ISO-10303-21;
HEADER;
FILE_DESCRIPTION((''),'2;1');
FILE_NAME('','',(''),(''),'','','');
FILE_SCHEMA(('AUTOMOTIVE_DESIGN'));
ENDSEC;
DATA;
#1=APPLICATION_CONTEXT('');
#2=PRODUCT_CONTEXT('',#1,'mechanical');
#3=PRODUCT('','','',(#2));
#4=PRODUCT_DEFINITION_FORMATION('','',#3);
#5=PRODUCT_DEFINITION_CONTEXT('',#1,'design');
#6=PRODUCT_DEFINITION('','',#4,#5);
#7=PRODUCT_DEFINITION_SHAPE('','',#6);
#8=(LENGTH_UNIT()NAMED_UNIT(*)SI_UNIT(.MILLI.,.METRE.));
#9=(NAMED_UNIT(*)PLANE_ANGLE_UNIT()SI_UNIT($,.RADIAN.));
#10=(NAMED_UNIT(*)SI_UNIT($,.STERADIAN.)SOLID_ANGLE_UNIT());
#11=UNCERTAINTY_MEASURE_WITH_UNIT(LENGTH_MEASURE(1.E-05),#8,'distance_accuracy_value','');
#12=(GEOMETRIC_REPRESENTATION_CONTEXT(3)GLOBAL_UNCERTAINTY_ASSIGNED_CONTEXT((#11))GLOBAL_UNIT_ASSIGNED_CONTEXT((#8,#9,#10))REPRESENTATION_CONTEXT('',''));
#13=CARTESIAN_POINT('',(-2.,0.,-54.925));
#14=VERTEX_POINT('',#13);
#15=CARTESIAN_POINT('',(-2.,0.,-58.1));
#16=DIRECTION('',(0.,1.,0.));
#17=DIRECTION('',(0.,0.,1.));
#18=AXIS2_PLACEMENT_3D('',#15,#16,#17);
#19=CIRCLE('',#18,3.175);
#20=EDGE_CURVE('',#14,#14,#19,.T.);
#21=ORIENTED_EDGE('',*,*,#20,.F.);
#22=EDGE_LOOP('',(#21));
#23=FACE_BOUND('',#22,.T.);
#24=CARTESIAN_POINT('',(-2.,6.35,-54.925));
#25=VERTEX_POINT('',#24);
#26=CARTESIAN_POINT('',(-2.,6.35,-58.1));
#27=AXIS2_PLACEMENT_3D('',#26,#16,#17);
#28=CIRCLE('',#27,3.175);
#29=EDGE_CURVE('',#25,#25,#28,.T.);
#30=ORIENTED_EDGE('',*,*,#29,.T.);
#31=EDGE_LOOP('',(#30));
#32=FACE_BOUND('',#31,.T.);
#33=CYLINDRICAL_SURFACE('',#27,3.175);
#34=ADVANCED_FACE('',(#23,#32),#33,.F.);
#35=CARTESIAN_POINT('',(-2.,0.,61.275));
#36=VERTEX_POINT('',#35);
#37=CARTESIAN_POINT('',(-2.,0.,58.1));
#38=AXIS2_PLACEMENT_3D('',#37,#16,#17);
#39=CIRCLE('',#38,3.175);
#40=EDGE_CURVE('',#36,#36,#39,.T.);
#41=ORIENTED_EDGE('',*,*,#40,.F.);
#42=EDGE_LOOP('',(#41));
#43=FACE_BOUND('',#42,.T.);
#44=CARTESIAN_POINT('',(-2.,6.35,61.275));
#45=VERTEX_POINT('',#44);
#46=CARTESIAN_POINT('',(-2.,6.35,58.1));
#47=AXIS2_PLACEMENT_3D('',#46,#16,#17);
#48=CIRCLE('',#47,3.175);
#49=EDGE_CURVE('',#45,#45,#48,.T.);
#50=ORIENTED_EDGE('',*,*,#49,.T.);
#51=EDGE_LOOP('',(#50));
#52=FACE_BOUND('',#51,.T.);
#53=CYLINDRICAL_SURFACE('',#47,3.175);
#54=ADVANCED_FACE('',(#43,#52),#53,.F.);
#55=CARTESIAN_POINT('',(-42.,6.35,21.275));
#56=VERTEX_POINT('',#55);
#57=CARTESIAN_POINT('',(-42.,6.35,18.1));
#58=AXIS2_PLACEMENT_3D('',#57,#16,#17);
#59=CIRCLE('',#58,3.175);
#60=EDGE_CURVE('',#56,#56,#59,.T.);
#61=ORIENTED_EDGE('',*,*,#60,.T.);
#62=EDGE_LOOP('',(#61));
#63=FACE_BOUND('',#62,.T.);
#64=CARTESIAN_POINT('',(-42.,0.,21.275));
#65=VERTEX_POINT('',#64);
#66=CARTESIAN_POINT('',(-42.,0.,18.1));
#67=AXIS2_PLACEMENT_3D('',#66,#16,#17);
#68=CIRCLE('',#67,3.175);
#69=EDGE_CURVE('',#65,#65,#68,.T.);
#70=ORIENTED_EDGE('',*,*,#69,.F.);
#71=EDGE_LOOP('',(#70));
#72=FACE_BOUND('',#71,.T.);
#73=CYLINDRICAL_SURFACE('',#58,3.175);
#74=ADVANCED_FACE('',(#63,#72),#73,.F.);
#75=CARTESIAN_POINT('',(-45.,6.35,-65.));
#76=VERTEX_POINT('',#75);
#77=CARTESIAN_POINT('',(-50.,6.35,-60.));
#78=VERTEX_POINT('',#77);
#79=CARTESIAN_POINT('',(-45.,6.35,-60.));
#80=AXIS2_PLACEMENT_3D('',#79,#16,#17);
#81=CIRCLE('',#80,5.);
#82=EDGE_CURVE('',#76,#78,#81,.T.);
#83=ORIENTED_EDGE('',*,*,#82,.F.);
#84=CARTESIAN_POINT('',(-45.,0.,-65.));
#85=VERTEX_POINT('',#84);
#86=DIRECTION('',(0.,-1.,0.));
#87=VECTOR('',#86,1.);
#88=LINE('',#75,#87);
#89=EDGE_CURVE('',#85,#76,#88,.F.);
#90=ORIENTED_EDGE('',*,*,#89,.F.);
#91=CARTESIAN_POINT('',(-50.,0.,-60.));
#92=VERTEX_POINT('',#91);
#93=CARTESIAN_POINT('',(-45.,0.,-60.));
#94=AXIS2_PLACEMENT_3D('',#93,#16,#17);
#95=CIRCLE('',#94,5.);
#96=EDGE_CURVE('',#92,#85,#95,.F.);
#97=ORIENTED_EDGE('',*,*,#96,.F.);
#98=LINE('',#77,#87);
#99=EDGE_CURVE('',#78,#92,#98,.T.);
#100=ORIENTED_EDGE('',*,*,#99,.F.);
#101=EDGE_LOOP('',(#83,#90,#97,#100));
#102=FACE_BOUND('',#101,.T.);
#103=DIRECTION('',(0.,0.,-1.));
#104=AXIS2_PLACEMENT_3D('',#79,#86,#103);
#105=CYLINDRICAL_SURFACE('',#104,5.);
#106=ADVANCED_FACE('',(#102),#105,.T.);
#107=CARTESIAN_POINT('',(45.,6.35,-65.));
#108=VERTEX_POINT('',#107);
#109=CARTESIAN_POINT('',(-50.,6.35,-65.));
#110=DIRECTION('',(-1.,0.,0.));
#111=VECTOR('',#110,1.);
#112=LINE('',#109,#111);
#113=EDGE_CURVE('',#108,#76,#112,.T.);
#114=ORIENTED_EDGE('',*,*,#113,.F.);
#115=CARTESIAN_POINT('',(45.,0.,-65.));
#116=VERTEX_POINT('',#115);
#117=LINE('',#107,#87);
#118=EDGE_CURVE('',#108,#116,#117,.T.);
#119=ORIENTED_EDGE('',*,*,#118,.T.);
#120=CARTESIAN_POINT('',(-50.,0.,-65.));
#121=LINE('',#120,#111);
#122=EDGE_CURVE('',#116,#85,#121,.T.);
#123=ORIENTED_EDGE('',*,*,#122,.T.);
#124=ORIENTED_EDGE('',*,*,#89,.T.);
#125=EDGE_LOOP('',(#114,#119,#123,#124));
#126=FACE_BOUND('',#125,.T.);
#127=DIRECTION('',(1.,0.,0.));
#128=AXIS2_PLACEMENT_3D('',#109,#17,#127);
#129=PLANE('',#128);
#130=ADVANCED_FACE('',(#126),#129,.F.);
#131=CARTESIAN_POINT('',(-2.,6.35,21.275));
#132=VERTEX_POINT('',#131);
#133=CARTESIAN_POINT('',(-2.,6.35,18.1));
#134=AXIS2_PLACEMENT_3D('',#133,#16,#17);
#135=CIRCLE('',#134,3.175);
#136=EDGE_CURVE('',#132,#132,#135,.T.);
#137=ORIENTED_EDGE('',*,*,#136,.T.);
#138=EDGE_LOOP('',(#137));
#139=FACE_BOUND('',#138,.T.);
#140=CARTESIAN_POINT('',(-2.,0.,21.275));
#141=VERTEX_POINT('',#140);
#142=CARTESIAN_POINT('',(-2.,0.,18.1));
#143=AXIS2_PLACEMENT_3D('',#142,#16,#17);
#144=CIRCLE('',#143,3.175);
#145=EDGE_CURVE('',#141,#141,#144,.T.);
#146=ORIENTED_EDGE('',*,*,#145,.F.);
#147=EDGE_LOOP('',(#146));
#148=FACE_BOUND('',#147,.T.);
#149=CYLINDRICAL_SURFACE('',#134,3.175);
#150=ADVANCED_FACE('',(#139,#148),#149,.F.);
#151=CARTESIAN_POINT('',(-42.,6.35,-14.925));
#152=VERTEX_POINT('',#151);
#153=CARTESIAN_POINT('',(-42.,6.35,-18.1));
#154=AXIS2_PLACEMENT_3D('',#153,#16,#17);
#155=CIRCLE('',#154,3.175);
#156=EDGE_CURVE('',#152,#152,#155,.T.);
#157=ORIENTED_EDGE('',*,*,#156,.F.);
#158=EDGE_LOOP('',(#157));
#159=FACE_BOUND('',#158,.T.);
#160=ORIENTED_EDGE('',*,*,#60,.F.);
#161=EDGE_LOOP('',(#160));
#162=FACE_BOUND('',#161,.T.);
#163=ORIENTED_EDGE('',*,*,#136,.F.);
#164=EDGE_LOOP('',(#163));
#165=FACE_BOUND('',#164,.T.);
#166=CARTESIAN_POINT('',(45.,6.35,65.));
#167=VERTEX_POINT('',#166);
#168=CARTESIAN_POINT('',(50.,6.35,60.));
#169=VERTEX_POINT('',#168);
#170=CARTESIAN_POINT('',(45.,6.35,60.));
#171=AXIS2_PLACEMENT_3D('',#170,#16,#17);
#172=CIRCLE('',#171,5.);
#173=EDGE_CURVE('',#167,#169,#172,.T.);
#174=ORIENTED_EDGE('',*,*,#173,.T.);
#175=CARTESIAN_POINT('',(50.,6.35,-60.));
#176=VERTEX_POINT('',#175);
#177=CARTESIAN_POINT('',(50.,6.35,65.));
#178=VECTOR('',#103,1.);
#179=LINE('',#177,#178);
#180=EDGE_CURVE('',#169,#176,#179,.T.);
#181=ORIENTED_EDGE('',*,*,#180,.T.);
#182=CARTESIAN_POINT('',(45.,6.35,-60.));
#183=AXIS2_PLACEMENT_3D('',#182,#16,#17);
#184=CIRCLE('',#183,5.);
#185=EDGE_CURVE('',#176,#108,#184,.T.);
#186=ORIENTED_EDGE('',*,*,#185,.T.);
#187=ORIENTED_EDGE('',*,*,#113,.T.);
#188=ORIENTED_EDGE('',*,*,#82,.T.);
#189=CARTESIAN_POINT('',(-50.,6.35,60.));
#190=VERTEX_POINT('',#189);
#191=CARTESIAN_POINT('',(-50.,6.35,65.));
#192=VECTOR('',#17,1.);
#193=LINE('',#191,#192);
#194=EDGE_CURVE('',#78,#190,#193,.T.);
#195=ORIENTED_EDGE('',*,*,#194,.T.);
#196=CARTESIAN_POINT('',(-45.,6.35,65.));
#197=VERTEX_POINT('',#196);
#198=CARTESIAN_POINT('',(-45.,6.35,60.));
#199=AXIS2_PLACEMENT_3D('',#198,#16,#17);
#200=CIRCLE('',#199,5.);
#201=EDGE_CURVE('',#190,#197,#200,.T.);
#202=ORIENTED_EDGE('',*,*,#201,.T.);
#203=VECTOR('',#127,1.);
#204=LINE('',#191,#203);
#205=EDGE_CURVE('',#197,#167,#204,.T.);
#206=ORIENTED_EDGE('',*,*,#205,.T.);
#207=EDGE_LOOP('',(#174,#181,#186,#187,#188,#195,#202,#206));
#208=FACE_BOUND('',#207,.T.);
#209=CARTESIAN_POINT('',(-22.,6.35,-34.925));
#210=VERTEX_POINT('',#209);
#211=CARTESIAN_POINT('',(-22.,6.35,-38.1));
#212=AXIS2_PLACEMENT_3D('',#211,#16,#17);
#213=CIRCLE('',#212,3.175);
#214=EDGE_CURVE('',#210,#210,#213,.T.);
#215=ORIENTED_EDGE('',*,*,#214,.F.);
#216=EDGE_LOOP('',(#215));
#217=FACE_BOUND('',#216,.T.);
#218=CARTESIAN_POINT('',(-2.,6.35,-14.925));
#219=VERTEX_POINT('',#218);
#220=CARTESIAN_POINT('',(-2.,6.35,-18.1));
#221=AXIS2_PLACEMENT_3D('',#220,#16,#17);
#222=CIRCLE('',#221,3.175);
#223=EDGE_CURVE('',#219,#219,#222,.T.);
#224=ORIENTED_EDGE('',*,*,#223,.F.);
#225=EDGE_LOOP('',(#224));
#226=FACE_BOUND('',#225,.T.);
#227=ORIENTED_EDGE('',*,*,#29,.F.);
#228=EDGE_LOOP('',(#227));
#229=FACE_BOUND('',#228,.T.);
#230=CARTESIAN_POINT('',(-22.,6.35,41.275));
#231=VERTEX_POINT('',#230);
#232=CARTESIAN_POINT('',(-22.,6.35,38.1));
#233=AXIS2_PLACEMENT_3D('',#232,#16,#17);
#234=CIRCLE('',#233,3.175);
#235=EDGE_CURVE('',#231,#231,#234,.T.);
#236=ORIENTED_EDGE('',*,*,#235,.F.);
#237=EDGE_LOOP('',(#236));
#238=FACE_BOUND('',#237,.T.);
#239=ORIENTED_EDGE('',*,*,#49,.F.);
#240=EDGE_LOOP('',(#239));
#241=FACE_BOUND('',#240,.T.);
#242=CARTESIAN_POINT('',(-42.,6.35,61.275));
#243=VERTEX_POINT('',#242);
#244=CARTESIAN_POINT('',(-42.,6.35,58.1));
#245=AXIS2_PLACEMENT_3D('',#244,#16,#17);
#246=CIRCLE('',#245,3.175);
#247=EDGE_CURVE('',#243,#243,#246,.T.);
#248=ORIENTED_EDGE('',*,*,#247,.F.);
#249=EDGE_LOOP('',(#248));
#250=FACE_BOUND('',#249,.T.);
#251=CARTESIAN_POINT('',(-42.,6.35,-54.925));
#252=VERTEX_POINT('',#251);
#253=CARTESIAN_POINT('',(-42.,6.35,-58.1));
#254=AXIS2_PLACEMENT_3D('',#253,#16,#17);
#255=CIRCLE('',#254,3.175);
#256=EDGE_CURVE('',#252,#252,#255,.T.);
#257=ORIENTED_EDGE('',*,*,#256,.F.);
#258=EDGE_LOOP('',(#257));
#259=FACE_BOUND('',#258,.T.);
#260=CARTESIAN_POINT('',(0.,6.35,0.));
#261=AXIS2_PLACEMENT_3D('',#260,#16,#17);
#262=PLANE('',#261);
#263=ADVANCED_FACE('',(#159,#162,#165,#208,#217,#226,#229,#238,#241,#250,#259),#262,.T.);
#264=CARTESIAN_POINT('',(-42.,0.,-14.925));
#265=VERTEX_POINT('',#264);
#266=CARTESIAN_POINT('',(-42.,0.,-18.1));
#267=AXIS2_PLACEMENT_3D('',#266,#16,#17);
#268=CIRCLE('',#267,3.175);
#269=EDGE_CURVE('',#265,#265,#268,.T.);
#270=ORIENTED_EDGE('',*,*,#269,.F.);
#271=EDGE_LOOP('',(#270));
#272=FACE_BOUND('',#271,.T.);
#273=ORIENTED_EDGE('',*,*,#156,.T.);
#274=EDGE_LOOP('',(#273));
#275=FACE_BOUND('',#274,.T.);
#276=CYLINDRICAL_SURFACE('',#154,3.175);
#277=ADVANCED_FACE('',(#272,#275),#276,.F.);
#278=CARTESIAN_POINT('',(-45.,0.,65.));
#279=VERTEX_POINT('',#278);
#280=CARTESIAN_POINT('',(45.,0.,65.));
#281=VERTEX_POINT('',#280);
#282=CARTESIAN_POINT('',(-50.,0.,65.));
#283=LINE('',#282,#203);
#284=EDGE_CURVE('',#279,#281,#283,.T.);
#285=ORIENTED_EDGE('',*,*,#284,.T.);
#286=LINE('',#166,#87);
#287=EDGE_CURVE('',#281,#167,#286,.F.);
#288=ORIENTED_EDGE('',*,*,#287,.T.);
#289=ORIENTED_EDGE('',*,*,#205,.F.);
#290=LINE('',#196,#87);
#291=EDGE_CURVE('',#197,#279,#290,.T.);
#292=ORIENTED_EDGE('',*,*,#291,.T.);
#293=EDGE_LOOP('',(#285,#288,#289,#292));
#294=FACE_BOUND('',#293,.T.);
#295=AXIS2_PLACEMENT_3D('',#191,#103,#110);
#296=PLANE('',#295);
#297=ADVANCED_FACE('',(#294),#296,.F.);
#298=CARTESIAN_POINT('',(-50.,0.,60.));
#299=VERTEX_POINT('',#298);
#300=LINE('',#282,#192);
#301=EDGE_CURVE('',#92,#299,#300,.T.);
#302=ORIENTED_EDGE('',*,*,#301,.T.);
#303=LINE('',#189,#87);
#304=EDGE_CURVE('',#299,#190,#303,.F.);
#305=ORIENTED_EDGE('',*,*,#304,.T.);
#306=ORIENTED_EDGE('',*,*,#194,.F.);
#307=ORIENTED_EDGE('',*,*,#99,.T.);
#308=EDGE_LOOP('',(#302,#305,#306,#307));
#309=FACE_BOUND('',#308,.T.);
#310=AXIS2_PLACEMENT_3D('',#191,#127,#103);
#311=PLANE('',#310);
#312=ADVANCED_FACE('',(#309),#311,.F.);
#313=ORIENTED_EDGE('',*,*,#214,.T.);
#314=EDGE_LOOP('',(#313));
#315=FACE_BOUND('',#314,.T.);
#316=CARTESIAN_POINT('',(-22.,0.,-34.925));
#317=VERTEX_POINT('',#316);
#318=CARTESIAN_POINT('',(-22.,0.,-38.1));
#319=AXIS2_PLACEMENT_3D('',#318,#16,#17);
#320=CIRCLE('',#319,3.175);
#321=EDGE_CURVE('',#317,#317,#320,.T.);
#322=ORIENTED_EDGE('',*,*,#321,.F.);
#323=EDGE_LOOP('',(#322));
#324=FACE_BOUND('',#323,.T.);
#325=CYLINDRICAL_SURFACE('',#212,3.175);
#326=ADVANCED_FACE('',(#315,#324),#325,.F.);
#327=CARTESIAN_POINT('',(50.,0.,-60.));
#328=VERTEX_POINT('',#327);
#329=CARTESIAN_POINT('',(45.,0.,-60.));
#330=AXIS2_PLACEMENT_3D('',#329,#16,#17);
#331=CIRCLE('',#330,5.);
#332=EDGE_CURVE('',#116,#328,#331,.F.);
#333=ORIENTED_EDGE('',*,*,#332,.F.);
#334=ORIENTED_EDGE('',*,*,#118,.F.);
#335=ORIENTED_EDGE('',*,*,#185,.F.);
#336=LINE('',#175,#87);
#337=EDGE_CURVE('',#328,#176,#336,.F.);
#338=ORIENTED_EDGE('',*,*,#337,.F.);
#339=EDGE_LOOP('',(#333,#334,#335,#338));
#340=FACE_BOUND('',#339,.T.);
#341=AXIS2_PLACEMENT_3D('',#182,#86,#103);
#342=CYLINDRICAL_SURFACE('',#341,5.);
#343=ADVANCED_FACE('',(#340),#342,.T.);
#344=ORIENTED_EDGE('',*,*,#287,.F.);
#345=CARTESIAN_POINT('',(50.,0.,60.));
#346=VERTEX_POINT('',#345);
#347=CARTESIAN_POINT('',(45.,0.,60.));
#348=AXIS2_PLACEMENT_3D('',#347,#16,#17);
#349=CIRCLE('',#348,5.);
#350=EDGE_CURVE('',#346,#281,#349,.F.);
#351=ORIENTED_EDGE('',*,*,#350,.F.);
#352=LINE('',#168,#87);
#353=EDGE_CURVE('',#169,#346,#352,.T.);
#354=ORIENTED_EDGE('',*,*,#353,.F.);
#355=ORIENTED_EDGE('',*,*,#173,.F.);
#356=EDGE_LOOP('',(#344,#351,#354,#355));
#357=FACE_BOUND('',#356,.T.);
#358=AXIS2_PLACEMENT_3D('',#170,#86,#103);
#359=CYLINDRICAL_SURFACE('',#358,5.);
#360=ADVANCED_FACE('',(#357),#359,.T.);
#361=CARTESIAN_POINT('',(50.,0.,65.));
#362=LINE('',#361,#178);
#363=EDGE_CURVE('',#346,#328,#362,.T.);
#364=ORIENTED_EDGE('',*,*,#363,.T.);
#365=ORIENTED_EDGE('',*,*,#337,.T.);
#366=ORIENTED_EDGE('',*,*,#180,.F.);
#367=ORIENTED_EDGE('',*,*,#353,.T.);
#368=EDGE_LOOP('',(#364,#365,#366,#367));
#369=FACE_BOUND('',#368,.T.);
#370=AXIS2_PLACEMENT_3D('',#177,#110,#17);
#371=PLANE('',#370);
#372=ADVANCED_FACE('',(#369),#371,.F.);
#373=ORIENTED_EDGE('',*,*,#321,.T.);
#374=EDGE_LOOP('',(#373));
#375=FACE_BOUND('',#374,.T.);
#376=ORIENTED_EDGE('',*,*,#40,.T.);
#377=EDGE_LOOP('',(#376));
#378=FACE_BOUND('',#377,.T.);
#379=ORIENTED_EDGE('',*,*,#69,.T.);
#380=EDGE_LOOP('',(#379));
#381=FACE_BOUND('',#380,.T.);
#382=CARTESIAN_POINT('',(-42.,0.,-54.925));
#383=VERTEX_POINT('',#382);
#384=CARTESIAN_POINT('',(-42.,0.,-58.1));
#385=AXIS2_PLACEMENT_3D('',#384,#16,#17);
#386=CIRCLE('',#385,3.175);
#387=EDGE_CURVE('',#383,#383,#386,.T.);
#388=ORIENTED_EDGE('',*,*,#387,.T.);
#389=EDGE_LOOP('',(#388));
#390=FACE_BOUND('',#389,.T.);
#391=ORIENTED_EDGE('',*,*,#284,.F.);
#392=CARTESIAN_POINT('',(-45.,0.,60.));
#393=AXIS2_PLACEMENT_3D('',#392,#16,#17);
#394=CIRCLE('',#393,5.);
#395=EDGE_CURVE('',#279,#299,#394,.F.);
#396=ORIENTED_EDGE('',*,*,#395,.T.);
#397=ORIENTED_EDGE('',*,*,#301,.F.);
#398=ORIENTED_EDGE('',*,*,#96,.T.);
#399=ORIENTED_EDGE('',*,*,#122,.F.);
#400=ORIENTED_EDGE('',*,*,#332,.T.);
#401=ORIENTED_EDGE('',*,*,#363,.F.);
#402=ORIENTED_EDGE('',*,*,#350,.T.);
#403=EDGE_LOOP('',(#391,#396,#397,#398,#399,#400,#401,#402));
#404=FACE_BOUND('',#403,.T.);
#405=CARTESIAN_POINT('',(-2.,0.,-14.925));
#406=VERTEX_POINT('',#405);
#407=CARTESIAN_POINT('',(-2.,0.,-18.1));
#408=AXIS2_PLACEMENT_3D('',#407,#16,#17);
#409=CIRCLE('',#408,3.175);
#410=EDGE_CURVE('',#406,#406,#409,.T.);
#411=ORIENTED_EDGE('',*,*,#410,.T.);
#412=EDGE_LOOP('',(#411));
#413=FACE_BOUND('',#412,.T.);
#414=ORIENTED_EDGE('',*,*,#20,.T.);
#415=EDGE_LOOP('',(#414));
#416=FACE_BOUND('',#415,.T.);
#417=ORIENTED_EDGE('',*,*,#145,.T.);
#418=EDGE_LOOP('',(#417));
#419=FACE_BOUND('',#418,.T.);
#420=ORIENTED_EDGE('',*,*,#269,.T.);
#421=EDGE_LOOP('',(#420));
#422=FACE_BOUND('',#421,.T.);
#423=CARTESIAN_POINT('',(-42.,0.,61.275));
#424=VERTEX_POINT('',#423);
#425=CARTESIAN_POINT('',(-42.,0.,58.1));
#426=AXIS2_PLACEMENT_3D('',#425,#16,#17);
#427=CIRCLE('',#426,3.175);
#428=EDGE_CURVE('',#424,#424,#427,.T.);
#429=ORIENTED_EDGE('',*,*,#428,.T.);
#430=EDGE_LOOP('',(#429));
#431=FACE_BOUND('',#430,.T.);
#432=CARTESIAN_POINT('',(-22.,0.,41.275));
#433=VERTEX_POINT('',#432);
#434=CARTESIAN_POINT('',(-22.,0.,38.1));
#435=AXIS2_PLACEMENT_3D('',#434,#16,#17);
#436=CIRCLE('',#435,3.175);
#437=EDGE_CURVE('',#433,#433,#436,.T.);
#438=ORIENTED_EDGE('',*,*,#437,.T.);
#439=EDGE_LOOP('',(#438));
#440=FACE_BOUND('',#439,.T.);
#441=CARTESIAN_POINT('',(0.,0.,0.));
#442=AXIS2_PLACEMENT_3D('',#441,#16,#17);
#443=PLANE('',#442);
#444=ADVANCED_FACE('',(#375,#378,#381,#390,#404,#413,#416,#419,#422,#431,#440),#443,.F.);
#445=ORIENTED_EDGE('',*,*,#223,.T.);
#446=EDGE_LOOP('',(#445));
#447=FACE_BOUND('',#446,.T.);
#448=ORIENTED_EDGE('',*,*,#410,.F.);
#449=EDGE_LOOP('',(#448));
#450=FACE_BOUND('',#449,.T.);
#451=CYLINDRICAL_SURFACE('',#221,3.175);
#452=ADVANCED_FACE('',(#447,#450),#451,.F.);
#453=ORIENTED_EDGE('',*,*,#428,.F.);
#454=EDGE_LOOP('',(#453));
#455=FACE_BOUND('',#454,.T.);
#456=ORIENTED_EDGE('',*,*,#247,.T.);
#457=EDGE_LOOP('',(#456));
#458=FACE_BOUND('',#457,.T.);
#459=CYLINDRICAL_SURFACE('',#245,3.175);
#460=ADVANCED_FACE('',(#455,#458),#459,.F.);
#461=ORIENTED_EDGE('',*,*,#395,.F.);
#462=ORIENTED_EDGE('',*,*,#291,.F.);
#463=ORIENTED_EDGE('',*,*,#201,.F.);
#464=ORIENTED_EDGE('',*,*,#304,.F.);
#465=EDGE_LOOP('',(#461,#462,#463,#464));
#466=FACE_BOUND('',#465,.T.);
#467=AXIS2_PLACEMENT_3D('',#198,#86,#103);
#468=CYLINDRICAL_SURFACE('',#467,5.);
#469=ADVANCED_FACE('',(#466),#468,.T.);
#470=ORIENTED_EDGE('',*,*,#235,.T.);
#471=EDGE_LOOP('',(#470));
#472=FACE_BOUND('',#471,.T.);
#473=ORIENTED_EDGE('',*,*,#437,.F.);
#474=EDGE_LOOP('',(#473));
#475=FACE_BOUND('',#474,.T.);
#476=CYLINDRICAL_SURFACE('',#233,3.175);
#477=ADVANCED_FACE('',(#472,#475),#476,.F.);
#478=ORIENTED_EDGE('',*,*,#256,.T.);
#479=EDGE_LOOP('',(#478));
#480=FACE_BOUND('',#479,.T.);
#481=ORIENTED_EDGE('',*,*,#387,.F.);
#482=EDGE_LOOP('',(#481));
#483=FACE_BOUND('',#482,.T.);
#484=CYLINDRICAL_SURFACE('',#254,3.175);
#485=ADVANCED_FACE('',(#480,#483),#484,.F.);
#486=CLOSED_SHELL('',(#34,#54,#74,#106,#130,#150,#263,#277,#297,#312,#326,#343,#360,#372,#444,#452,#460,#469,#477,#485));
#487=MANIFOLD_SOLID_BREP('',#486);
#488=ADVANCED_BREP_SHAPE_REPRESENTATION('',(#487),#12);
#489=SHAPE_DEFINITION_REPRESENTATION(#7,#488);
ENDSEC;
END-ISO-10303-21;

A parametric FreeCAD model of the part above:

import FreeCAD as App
import Part
import Sketcher


def edges_at(feature, points):
    """Names of the edges that pass closest to the given points."""
    edges = feature.Shape.Edges
    near = lambda p: min(range(len(edges)), key=lambda i: edges[i].distToShape(Part.Vertex(*p))[0])
    return sorted({f"Edge{near(p) + 1}" for p in points})

doc = App.newDocument("Part")
body = doc.addObject("PartDesign::Body", "Body")

# Sketch on XZ plane
sketch1 = body.newObject("Sketcher::SketchObject", "Sketch")
sketch1.AttachmentSupport = (doc.getObject("XZ_Plane"), [""])
sketch1.MapMode = "FlatFace"
sketch1.addGeometry([
    Part.LineSegment(App.Vector(-50, -65, 0), App.Vector(-50, 65, 0)),
    Part.LineSegment(App.Vector(-50, 65, 0), App.Vector(50, 65, 0)),
    Part.LineSegment(App.Vector(50, 65, 0), App.Vector(50, -65, 0)),
    Part.LineSegment(App.Vector(50, -65, 0), App.Vector(-50, -65, 0)),
], False)
sketch1.addConstraint([
    Sketcher.Constraint("Coincident", 0, 2, 1, 1),
    Sketcher.Constraint("Coincident", 1, 2, 2, 1),
    Sketcher.Constraint("Coincident", 2, 2, 3, 1),
    Sketcher.Constraint("Coincident", 3, 2, 0, 1),
    Sketcher.Constraint("Vertical", 0),
    Sketcher.Constraint("Horizontal", 1),
    Sketcher.Constraint("Vertical", 2),
    Sketcher.Constraint("Horizontal", 3),
    Sketcher.Constraint("Symmetric", 0, 2, 2, 2, -1, 1),
    Sketcher.Constraint("DistanceX", 1, 1, 1, 2, 100.0),
    Sketcher.Constraint("DistanceY", 0, 1, 0, 2, 130.0),
])
pad1 = body.newObject("PartDesign::Pad", "Pad")
pad1.Profile = sketch1
pad1.Length = 6.35
pad1.Reversed = True
doc.recompute()

fillet = body.newObject("PartDesign::Fillet", "Fillet")
fillet.Base = (pad1, edges_at(pad1, [
    (-50, 3.175, 65),
    (-50, 3.175, -65),
    (50, 3.175, -65),
    (50, 3.175, 65),
]))
fillet.Radius = 5

# Sketch on XZ plane
sketch2 = body.newObject("Sketcher::SketchObject", "Sketch001")
sketch2.AttachmentSupport = (doc.getObject("XZ_Plane"), [""])
sketch2.MapMode = "FlatFace"
sketch2.AttachmentOffset = App.Placement(App.Vector(0, 0, -6.35), App.Rotation())
sketch2.addGeometry([
    Part.Circle(App.Vector(-42, 18.1, 0), App.Vector(0, 0, 1), 3.2),  # 0
    Part.Circle(App.Vector(-2, 18.1, 0), App.Vector(0, 0, 1), 3.2),  # 1
    Part.Circle(App.Vector(-2, 58.1, 0), App.Vector(0, 0, 1), 3.2),  # 2
    Part.Circle(App.Vector(-42, 58.1, 0), App.Vector(0, 0, 1), 3.2),  # 3
    Part.Circle(App.Vector(-22, 38.1, 0), App.Vector(0, 0, 1), 3.2),  # 4
], False)
sketch2.addConstraint([
    Sketcher.Constraint("Equal", 0, 1),
    Sketcher.Constraint("Equal", 1, 2),
    Sketcher.Constraint("Equal", 2, 3),
    Sketcher.Constraint("Equal", 3, 4),
    Sketcher.Constraint("Horizontal", 0, 3, 1, 3),
    Sketcher.Constraint("Horizontal", 2, 3, 3, 3),
    Sketcher.Constraint("Vertical", 1, 3, 2, 3),
    Sketcher.Constraint("Vertical", 0, 3, 3, 3),
    Sketcher.Constraint("Diameter", 0, 6.35),
    Sketcher.Constraint("DistanceX", 0, 3, -1, 1, 42.0),
    Sketcher.Constraint("DistanceX", 1, 3, -1, 1, 2.0),
    Sketcher.Constraint("DistanceX", 4, 3, -1, 1, 22.0),
    Sketcher.Constraint("DistanceY", 1, 3, 2, 3, 40.0),
    Sketcher.Constraint("DistanceY", 0, 3, 4, 3, 20.0),
    Sketcher.Constraint("DistanceY", -1, 1, 0, 3, 18.1),
])
doc.recompute()
hole = body.newObject("PartDesign::Hole", "Hole")
hole.Profile = sketch2
hole.ThreadType = "None"
hole.Diameter = 6.35
hole.DepthType = "ThroughAll"
hole.Reversed = True
doc.recompute()

mirrored = body.newObject("PartDesign::Mirrored", "Mirrored")
mirrored.Originals = [hole]
mirrored.MirrorPlane = (doc.getObject("XY_Plane"), [""])
body.Tip = mirrored

doc.recompute()
